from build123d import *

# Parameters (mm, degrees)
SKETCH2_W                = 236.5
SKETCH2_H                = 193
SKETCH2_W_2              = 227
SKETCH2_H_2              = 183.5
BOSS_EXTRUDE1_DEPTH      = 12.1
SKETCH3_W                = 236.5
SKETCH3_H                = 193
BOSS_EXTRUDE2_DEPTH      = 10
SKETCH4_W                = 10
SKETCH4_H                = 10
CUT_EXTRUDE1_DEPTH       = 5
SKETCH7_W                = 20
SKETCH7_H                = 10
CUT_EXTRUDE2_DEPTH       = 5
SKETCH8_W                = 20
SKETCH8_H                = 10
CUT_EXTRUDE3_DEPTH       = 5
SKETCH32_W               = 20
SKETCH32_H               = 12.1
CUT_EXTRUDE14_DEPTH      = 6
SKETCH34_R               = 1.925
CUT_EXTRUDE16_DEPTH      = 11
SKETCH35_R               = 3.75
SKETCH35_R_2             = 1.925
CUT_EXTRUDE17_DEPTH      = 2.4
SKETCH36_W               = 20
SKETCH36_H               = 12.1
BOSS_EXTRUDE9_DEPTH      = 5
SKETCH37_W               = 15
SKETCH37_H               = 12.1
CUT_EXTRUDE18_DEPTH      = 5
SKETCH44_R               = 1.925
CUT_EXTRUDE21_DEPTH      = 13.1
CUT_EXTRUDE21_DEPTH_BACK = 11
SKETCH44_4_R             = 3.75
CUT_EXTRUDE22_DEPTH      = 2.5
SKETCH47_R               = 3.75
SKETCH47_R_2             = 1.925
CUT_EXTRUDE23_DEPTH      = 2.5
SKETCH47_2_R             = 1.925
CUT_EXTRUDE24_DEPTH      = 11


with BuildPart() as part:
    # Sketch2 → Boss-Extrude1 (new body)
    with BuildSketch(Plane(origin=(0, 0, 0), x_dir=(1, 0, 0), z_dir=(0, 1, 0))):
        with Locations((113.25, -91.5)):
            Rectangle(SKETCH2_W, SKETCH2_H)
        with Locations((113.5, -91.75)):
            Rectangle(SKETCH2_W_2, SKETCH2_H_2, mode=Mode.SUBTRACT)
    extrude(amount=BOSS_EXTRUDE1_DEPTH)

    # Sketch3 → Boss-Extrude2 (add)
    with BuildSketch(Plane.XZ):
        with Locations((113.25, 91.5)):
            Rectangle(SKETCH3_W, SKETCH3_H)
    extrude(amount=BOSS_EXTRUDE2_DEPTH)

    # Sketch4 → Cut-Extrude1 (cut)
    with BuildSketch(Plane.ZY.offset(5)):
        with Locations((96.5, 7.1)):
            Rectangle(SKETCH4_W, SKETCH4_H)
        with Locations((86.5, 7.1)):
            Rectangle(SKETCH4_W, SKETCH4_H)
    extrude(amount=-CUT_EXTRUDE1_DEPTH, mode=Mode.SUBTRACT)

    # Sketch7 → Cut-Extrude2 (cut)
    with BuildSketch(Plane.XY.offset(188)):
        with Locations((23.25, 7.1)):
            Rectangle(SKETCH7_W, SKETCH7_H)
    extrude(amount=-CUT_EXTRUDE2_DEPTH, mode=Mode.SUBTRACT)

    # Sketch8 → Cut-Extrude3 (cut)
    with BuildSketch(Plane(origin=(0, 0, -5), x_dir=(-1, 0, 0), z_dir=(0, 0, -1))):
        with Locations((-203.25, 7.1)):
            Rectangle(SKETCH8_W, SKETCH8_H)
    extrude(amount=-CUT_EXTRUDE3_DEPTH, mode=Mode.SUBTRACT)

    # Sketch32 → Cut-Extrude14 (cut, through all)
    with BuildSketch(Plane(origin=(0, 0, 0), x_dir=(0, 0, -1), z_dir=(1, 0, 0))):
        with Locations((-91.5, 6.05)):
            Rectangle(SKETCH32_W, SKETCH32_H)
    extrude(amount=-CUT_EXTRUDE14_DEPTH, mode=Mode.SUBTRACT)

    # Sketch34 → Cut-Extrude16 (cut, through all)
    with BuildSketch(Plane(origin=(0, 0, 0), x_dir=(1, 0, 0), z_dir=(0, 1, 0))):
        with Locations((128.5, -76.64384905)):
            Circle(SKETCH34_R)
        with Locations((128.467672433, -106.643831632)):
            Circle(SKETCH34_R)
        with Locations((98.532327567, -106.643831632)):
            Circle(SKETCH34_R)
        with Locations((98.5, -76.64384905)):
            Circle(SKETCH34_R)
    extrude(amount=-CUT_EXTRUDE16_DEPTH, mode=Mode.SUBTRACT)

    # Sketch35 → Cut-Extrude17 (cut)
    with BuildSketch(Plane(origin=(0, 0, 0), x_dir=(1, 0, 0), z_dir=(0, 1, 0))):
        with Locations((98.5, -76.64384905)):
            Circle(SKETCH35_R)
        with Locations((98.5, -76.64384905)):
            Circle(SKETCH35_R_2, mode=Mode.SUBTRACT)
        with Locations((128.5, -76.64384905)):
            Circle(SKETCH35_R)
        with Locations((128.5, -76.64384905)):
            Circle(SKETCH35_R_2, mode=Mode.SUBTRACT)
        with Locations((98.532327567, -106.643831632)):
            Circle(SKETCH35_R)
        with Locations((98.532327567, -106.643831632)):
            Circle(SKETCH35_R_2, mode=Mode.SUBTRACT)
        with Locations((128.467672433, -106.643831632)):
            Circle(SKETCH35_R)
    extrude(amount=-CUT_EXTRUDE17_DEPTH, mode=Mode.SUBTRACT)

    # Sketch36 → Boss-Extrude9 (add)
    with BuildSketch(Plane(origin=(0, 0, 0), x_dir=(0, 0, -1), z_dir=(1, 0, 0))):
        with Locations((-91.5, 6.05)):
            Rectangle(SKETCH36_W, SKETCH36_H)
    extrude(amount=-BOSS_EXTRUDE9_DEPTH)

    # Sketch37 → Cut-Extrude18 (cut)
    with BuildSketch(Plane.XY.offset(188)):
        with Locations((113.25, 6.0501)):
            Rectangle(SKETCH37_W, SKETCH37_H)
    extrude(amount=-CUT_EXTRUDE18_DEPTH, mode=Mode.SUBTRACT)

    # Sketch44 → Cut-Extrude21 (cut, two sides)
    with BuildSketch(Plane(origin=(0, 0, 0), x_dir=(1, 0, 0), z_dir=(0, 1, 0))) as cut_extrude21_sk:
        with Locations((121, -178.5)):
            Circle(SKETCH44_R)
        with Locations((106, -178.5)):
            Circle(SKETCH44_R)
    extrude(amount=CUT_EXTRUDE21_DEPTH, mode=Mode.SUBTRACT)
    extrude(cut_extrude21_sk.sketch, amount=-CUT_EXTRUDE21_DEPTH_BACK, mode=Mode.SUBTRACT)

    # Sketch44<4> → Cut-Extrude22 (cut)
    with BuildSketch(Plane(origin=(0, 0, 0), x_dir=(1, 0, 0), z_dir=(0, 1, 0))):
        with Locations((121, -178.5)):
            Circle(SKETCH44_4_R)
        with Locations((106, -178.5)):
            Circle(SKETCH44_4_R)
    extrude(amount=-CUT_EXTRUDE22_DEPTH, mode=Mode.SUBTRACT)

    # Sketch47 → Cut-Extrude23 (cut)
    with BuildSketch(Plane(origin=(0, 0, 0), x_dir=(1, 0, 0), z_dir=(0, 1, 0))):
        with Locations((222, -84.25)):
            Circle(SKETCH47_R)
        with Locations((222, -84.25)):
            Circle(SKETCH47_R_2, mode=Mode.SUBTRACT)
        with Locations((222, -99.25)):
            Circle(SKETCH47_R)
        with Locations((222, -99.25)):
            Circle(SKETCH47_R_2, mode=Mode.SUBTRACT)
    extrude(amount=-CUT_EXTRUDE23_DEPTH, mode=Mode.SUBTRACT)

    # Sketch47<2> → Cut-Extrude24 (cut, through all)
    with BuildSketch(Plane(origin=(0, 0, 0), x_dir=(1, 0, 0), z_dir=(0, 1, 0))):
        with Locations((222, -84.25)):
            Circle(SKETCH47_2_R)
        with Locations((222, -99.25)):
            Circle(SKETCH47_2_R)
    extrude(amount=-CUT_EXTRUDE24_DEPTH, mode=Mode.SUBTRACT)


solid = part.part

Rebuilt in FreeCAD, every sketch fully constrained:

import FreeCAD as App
import Part
import Sketcher
from FreeCAD import Vector
Q = App.Units.Quantity


def add_polygon(sketch, points):
    """Adds a closed chain of lines whose ends are joined by coincident constraints."""
    first, n = sketch.GeometryCount, len(points)
    for a, b in zip(points, points[1:] + points[:1]):
        sketch.addGeometry(Part.LineSegment(App.Vector(*a, 0), App.Vector(*b, 0)), False)
    for i in range(n):
        sketch.addConstraint(Sketcher.Constraint("Coincident", first + i, 2, first + (i + 1) % n, 1))

doc = App.newDocument("Part")
body = doc.addObject("PartDesign::Body", "Body")

# Sketch on XZ plane
sketch1 = doc.addObject("Sketcher::SketchObject", "Sketch")
body.addObject(sketch1)
sketch1.AttachmentSupport = (doc.XZ_Plane, [""])
sketch1.MapMode = "FlatFace"
add_polygon(sketch1, [(-5, -5), (-5, 188), (232, 188), (232, -5)])  # lines 0-3
add_polygon(sketch1, [(227, 184), (0, 184), (0, 0), (227, 0)])  # lines 4-7
sketch1.addConstraint([
    Sketcher.Constraint("Vertical", 0),
    Sketcher.Constraint("Horizontal", 1),
    Sketcher.Constraint("Vertical", 2),
    Sketcher.Constraint("Horizontal", 3),
    Sketcher.Constraint("Horizontal", 4),
    Sketcher.Constraint("Vertical", 5),
    Sketcher.Constraint("Horizontal", 6),
    Sketcher.Constraint("Vertical", 7),
    Sketcher.Constraint("Coincident", 5, 2, -1, 1),
    Sketcher.Constraint("DistanceX", 4, 2, 4, 1, Q("227 mm")),
    Sketcher.Constraint("DistanceY", 0, 1, 0, 2, Q("193 mm")),
    Sketcher.Constraint("DistanceX", 1, 1, 1, 2, Q("236.5 mm")),
    Sketcher.Constraint("DistanceY", 5, 2, 5, 1, Q("183.5 mm")),
    Sketcher.Constraint("DistanceX", 0, 2, -1, 1, Q("5 mm")),
    Sketcher.Constraint("DistanceY", -1, 1, 0, 2, Q("188 mm")),
])
pad1 = doc.addObject("PartDesign::Pad", "Pad")
body.addObject(pad1)
pad1.Profile = sketch1
pad1.Length = 12.1
pad1.Reversed = True

# Sketch on XZ plane
sketch2 = doc.addObject("Sketcher::SketchObject", "Sketch001")
body.addObject(sketch2)
sketch2.AttachmentSupport = (doc.XZ_Plane, [""])
sketch2.MapMode = "FlatFace"
add_polygon(sketch2, [(-5, 188), (-5, -5), (232, -5), (232, 188)])  # lines 0-3
sketch2.addConstraint([
    Sketcher.Constraint("Vertical", 0),
    Sketcher.Constraint("Horizontal", 1),
    Sketcher.Constraint("Vertical", 2),
    Sketcher.Constraint("Horizontal", 3),
    Sketcher.Constraint("DistanceY", 0, 2, 0, 1, Q("193 mm")),
    Sketcher.Constraint("DistanceX", 1, 1, 1, 2, Q("236.5 mm")),
    Sketcher.Constraint("DistanceX", 0, 2, -1, 1, Q("5 mm")),
    Sketcher.Constraint("DistanceY", 0, 2, -1, 1, Q("5 mm")),
])
pad2 = doc.addObject("PartDesign::Pad", "Pad001")
body.addObject(pad2)
pad2.Profile = sketch2
pad2.Length = 10

# Sketch on YZ plane
sketch3 = doc.addObject("Sketcher::SketchObject", "Sketch002")
body.addObject(sketch3)
sketch3.AttachmentSupport = (doc.YZ_Plane, [""])
sketch3.MapMode = "FlatFace"
sketch3.AttachmentOffset = App.Placement(Vector(0, 0, -5), App.Rotation())
add_polygon(sketch3, [(2, 102), (12, 102), (12, 82), (2, 82)])  # lines 0-3
sketch3.addConstraint([
    Sketcher.Constraint("Horizontal", 0),
    Sketcher.Constraint("Vertical", 1),
    Sketcher.Constraint("Horizontal", 2),
    Sketcher.Constraint("Vertical", 3),
    Sketcher.Constraint("DistanceX", 0, 1, 0, 2, Q("10 mm")),
    Sketcher.Constraint("DistanceY", 1, 2, 1, 1, Q("20 mm")),
    Sketcher.Constraint("DistanceX", -1, 1, 0, 2, Q("12.1 mm")),
    Sketcher.Constraint("DistanceY", -1, 1, 0, 2, Q("101.5 mm")),
])
pocket1 = doc.addObject("PartDesign::Pocket", "Pocket")
body.addObject(pocket1)
pocket1.Profile = sketch3
pocket1.Length = 5
pocket1.Reversed = True

# Sketch on XY plane
sketch4 = doc.addObject("Sketcher::SketchObject", "Sketch003")
body.addObject(sketch4)
sketch4.AttachmentSupport = (doc.XY_Plane, [""])
sketch4.MapMode = "FlatFace"
sketch4.AttachmentOffset = App.Placement(Vector(0, 0, 188), App.Rotation())
add_polygon(sketch4, [(13, 12), (13, 2), (33, 2), (33, 12)])  # lines 0-3
sketch4.addConstraint([
    Sketcher.Constraint("Vertical", 0),
    Sketcher.Constraint("Horizontal", 1),
    Sketcher.Constraint("Vertical", 2),
    Sketcher.Constraint("Horizontal", 3),
    Sketcher.Constraint("DistanceX", 1, 1, 1, 2, Q("20 mm")),
    Sketcher.Constraint("DistanceY", 0, 2, 0, 1, Q("10 mm")),
    Sketcher.Constraint("DistanceY", -1, 1, 0, 2, Q("2.1 mm")),
    Sketcher.Constraint("DistanceX", -1, 1, 0, 2, Q("13.25 mm")),
])
pocket2 = doc.addObject("PartDesign::Pocket", "Pocket001")
body.addObject(pocket2)
pocket2.Profile = sketch4
pocket2.Length = 5

# Sketch on XY plane
sketch5 = doc.addObject("Sketcher::SketchObject", "Sketch004")
body.addObject(sketch5)
sketch5.AttachmentSupport = (doc.XY_Plane, [""])
sketch5.MapMode = "FlatFace"
sketch5.AttachmentOffset = App.Placement(Vector(0, 0, -5), App.Rotation())
add_polygon(sketch5, [(213, 12), (213, 2), (193, 2), (193, 12)])  # lines 0-3
sketch5.addConstraint([
    Sketcher.Constraint("Vertical", 0),
    Sketcher.Constraint("Horizontal", 1),
    Sketcher.Constraint("Vertical", 2),
    Sketcher.Constraint("Horizontal", 3),
    Sketcher.Constraint("DistanceX", 1, 2, 1, 1, Q("20 mm")),
    Sketcher.Constraint("DistanceY", 0, 2, 0, 1, Q("10 mm")),
    Sketcher.Constraint("DistanceY", -1, 1, 0, 2, Q("2.1 mm")),
    Sketcher.Constraint("DistanceX", -1, 1, 0, 2, Q("213.25 mm")),
])
pocket3 = doc.addObject("PartDesign::Pocket", "Pocket002")
body.addObject(pocket3)
pocket3.Profile = sketch5
pocket3.Length = 5
pocket3.Reversed = True

# Sketch on YZ plane
sketch6 = doc.addObject("Sketcher::SketchObject", "Sketch005")
body.addObject(sketch6)
sketch6.AttachmentSupport = (doc.YZ_Plane, [""])
sketch6.MapMode = "FlatFace"
add_polygon(sketch6, [(12, 102), (0, 102), (0, 82), (12, 82)])  # lines 0-3
sketch6.addConstraint([
    Sketcher.Constraint("Horizontal", 0),
    Sketcher.Constraint("Vertical", 1),
    Sketcher.Constraint("Horizontal", 2),
    Sketcher.Constraint("Vertical", 3),
    Sketcher.Constraint("PointOnObject", 0, 2, -2),
    Sketcher.Constraint("DistanceY", 1, 2, 1, 1, Q("20 mm")),
    Sketcher.Constraint("DistanceX", 0, 2, 0, 1, Q("12.1 mm")),
    Sketcher.Constraint("DistanceY", -1, 1, 0, 2, Q("101.5 mm")),
])
pocket4 = doc.addObject("PartDesign::Pocket", "Pocket003")
body.addObject(pocket4)
pocket4.Profile = sketch6
pocket4.Type = "ThroughAll"

# Sketch on XZ plane
sketch7 = doc.addObject("Sketcher::SketchObject", "Sketch006")
body.addObject(sketch7)
sketch7.AttachmentSupport = (doc.XZ_Plane, [""])
sketch7.MapMode = "FlatFace"
sketch7.addGeometry([
    Part.Circle(Vector(128.5, 76.6, 0), Vector(0, 0, 1), 1.9),
    Part.Circle(Vector(128.5, 106.6, 0), Vector(0, 0, 1), 1.9),
    Part.Circle(Vector(98.5, 106.6, 0), Vector(0, 0, 1), 1.9),
    Part.Circle(Vector(98.5, 76.6, 0), Vector(0, 0, 1), 1.9),
], False)
sketch7.addConstraint([
    Sketcher.Constraint("Equal", 0, 1),
    Sketcher.Constraint("Equal", 1, 2),
    Sketcher.Constraint("Equal", 2, 3),
    Sketcher.Constraint("Horizontal", 1, 3, 2, 3),
    Sketcher.Constraint("Horizontal", 0, 3, 3, 3),
    Sketcher.Constraint("Diameter", 0, Q("3.85 mm")),
    Sketcher.Constraint("DistanceX", 3, 3, 0, 3, Q("30 mm")),
    Sketcher.Constraint("DistanceX", -1, 1, 0, 3, Q("128.5 mm")),
    Sketcher.Constraint("DistanceY", -1, 1, 0, 3, Q("76.643849 mm")),
    Sketcher.Constraint("DistanceY", -1, 1, 1, 3, Q("106.643832 mm")),
    Sketcher.Constraint("DistanceX", -1, 1, 1, 3, Q("128.467672 mm")),
    Sketcher.Constraint("DistanceX", -1, 1, 2, 3, Q("98.532328 mm")),
])
pocket5 = doc.addObject("PartDesign::Pocket", "Pocket004")
body.addObject(pocket5)
pocket5.Profile = sketch7
pocket5.Type = "ThroughAll"
pocket5.Reversed = True

# Sketch on XZ plane
sketch8 = doc.addObject("Sketcher::SketchObject", "Sketch007")
body.addObject(sketch8)
sketch8.AttachmentSupport = (doc.XZ_Plane, [""])
sketch8.MapMode = "FlatFace"
sketch8.addGeometry([
    Part.Circle(Vector(98.5, 76.6, 0), Vector(0, 0, 1), 3.8),  # 0
    Part.Circle(Vector(98.5, 76.6, 0), Vector(0, 0, 1), 1.9),  # 1
    Part.Circle(Vector(128.5, 76.6, 0), Vector(0, 0, 1), 3.8),  # 2
    Part.Circle(Vector(128.5, 76.6, 0), Vector(0, 0, 1), 1.9),  # 3
    Part.Circle(Vector(98.5, 106.6, 0), Vector(0, 0, 1), 3.8),  # 4
    Part.Circle(Vector(98.5, 106.6, 0), Vector(0, 0, 1), 1.9),  # 5
    Part.Circle(Vector(128.5, 106.6, 0), Vector(0, 0, 1), 3.8),  # 6
], False)
sketch8.addConstraint([
    Sketcher.Constraint("Coincident", 1, 3, 0, 3),
    Sketcher.Constraint("Coincident", 3, 3, 2, 3),
    Sketcher.Constraint("Coincident", 5, 3, 4, 3),
    Sketcher.Constraint("Equal", 0, 2),
    Sketcher.Constraint("Equal", 1, 3),
    Sketcher.Constraint("Equal", 2, 4),
    Sketcher.Constraint("Equal", 3, 5),
    Sketcher.Constraint("Equal", 4, 6),
    Sketcher.Constraint("Horizontal", 1, 3, 2, 3),
    Sketcher.Constraint("Horizontal", 5, 3, 6, 3),
    Sketcher.Constraint("Diameter", 0, Q("7.5 mm")),
    Sketcher.Constraint("Diameter", 1, Q("3.85 mm")),
    Sketcher.Constraint("DistanceX", 0, 3, 2, 3, Q("30 mm")),
    Sketcher.Constraint("DistanceX", -1, 1, 0, 3, Q("98.5 mm")),
    Sketcher.Constraint("DistanceY", -1, 1, 0, 3, Q("76.643849 mm")),
    Sketcher.Constraint("DistanceY", -1, 1, 4, 3, Q("106.643832 mm")),
    Sketcher.Constraint("DistanceX", -1, 1, 4, 3, Q("98.532328 mm")),
    Sketcher.Constraint("DistanceX", -1, 1, 6, 3, Q("128.467672 mm")),
])
pocket6 = doc.addObject("PartDesign::Pocket", "Pocket005")
body.addObject(pocket6)
pocket6.Profile = sketch8
pocket6.Length = 2.4
pocket6.Reversed = True

# Sketch on YZ plane
sketch9 = doc.addObject("Sketcher::SketchObject", "Sketch008")
body.addObject(sketch9)
sketch9.AttachmentSupport = (doc.YZ_Plane, [""])
sketch9.MapMode = "FlatFace"
add_polygon(sketch9, [(12, 102), (0, 102), (0, 82), (12, 82)])  # lines 0-3
sketch9.addConstraint([
    Sketcher.Constraint("Horizontal", 0),
    Sketcher.Constraint("Vertical", 1),
    Sketcher.Constraint("Horizontal", 2),
    Sketcher.Constraint("Vertical", 3),
    Sketcher.Constraint("PointOnObject", 0, 2, -2),
    Sketcher.Constraint("DistanceY", 1, 2, 1, 1, Q("20 mm")),
    Sketcher.Constraint("DistanceX", 0, 2, 0, 1, Q("12.1 mm")),
    Sketcher.Constraint("DistanceY", -1, 1, 0, 2, Q("101.5 mm")),
])
pad3 = doc.addObject("PartDesign::Pad", "Pad002")
body.addObject(pad3)
pad3.Profile = sketch9
pad3.Length = 5
pad3.Reversed = True

# Sketch on XY plane
sketch10 = doc.addObject("Sketcher::SketchObject", "Sketch009")
body.addObject(sketch10)
sketch10.AttachmentSupport = (doc.XY_Plane, [""])
sketch10.MapMode = "FlatFace"
sketch10.AttachmentOffset = App.Placement(Vector(0, 0, 188), App.Rotation())
add_polygon(sketch10, [(106, 12), (106, 0), (121, 0), (121, 12)])  # lines 0-3
sketch10.addConstraint([
    Sketcher.Constraint("Vertical", 0),
    Sketcher.Constraint("Horizontal", 1),
    Sketcher.Constraint("Vertical", 2),
    Sketcher.Constraint("Horizontal", 3),
    Sketcher.Constraint("DistanceX", 1, 1, 1, 2, Q("15 mm")),
    Sketcher.Constraint("DistanceY", 0, 2, 0, 1, Q("12.1 mm")),
    Sketcher.Constraint("DistanceX", -1, 1, 0, 2, Q("105.75 mm")),
    Sketcher.Constraint("DistanceY", -1, 1, 0, 2, Q("0.0001 mm")),
])
pocket7 = doc.addObject("PartDesign::Pocket", "Pocket006")
body.addObject(pocket7)
pocket7.Profile = sketch10
pocket7.Length = 5

# Sketch on XZ plane
sketch11 = doc.addObject("Sketcher::SketchObject", "Sketch010")
body.addObject(sketch11)
sketch11.AttachmentSupport = (doc.XZ_Plane, [""])
sketch11.MapMode = "FlatFace"
sketch11.addGeometry([
    Part.Circle(Vector(121, 178.5, 0), Vector(0, 0, 1), 1.9),
    Part.Circle(Vector(106, 178.5, 0), Vector(0, 0, 1), 1.9),
], False)
sketch11.addConstraint([
    Sketcher.Constraint("Equal", 0, 1),
    Sketcher.Constraint("Horizontal", 0, 3, 1, 3),
    Sketcher.Constraint("Diameter", 0, Q("3.85 mm")),
    Sketcher.Constraint("DistanceX", -1, 1, 0, 3, Q("121 mm")),
    Sketcher.Constraint("DistanceX", -1, 1, 1, 3, Q("106 mm")),
    Sketcher.Constraint("DistanceY", -1, 1, 0, 3, Q("178.5 mm")),
])
pocket8 = doc.addObject("PartDesign::Pocket", "Pocket007")
body.addObject(pocket8)
pocket8.Profile = sketch11
pocket8.Type = "ThroughAll"
pocket8.Midplane = True

# Sketch on XZ plane
sketch12 = doc.addObject("Sketcher::SketchObject", "Sketch011")
body.addObject(sketch12)
sketch12.AttachmentSupport = (doc.XZ_Plane, [""])
sketch12.MapMode = "FlatFace"
sketch12.addGeometry([
    Part.Circle(Vector(121, 178.5, 0), Vector(0, 0, 1), 3.8),
    Part.Circle(Vector(106, 178.5, 0), Vector(0, 0, 1), 3.8),
], False)
sketch12.addConstraint([
    Sketcher.Constraint("Equal", 0, 1),
    Sketcher.Constraint("Horizontal", 0, 3, 1, 3),
    Sketcher.Constraint("Diameter", 0, Q("7.5 mm")),
    Sketcher.Constraint("DistanceX", -1, 1, 0, 3, Q("121 mm")),
    Sketcher.Constraint("DistanceX", -1, 1, 1, 3, Q("106 mm")),
    Sketcher.Constraint("DistanceY", -1, 1, 0, 3, Q("178.5 mm")),
])
pocket9 = doc.addObject("PartDesign::Pocket", "Pocket008")
body.addObject(pocket9)
pocket9.Profile = sketch12
pocket9.Length = 2.5
pocket9.Reversed = True

# Sketch on XZ plane
sketch13 = doc.addObject("Sketcher::SketchObject", "Sketch012")
body.addObject(sketch13)
sketch13.AttachmentSupport = (doc.XZ_Plane, [""])
sketch13.MapMode = "FlatFace"
sketch13.addGeometry([
    Part.Circle(Vector(222, 84.2, 0), Vector(0, 0, 1), 3.8),
    Part.Circle(Vector(222, 84.2, 0), Vector(0, 0, 1), 1.9),
    Part.Circle(Vector(222, 99.2, 0), Vector(0, 0, 1), 3.8),
    Part.Circle(Vector(222, 99.2, 0), Vector(0, 0, 1), 1.9),
], False)
sketch13.addConstraint([
    Sketcher.Constraint("Coincident", 1, 3, 0, 3),
    Sketcher.Constraint("Coincident", 3, 3, 2, 3),
    Sketcher.Constraint("Equal", 0, 2),
    Sketcher.Constraint("Equal", 1, 3),
    Sketcher.Constraint("Vertical", 1, 3, 2, 3),
    Sketcher.Constraint("Diameter", 0, Q("7.5 mm")),
    Sketcher.Constraint("Diameter", 1, Q("3.85 mm")),
    Sketcher.Constraint("DistanceX", -1, 1, 0, 3, Q("222 mm")),
    Sketcher.Constraint("DistanceY", 0, 3, 2, 3, Q("15 mm")),
    Sketcher.Constraint("DistanceY", -1, 1, 0, 3, Q("84.25 mm")),
])
pocket10 = doc.addObject("PartDesign::Pocket", "Pocket009")
body.addObject(pocket10)
pocket10.Profile = sketch13
pocket10.Length = 2.5
pocket10.Reversed = True

# Sketch on XZ plane
sketch14 = doc.addObject("Sketcher::SketchObject", "Sketch013")
body.addObject(sketch14)
sketch14.AttachmentSupport = (doc.XZ_Plane, [""])
sketch14.MapMode = "FlatFace"
sketch14.addGeometry([
    Part.Circle(Vector(222, 84.2, 0), Vector(0, 0, 1), 1.9),
    Part.Circle(Vector(222, 99.2, 0), Vector(0, 0, 1), 1.9),
], False)
sketch14.addConstraint([
    Sketcher.Constraint("Equal", 0, 1),
    Sketcher.Constraint("Vertical", 0, 3, 1, 3),
    Sketcher.Constraint("Diameter", 0, Q("3.85 mm")),
    Sketcher.Constraint("DistanceX", -1, 1, 0, 3, Q("222 mm")),
    Sketcher.Constraint("DistanceY", 0, 3, 1, 3, Q("15 mm")),
    Sketcher.Constraint("DistanceY", -1, 1, 0, 3, Q("84.25 mm")),
])
pocket11 = doc.addObject("PartDesign::Pocket", "Pocket010")
body.addObject(pocket11)
pocket11.Profile = sketch14
pocket11.Type = "ThroughAll"
pocket11.Reversed = True

doc.recompute()
